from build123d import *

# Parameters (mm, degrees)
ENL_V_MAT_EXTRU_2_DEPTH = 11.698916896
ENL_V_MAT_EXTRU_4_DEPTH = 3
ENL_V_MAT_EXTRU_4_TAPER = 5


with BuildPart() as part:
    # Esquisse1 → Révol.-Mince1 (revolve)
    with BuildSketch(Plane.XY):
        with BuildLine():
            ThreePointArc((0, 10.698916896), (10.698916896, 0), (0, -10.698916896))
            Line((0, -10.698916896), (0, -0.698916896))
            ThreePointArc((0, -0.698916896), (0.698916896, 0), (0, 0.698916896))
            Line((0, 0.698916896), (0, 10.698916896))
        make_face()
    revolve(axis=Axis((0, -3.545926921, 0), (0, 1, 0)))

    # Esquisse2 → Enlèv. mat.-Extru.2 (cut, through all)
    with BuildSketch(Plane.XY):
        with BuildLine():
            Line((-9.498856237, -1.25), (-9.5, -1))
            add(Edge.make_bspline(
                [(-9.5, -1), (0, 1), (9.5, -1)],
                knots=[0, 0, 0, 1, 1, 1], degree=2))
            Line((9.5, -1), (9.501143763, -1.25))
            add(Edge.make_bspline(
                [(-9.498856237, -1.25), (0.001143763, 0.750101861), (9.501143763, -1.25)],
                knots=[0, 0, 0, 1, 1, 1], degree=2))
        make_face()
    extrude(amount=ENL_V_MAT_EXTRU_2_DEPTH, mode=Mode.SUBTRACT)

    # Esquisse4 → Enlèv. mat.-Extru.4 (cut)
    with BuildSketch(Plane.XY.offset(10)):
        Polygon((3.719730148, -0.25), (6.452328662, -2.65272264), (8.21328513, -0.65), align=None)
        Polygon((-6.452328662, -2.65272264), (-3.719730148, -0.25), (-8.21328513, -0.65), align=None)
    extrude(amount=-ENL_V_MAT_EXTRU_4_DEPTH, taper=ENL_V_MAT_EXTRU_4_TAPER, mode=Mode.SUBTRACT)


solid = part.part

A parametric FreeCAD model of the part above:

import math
import FreeCAD as App
import Part
import Sketcher

V = App.Vector
Q = App.Units.Quantity

doc = App.newDocument("Part")
body = doc.addObject("PartDesign::Body", "Body")

# Sketch on XY plane
sketch1 = doc.addObject("Sketcher::SketchObject", "Sketch")
body.addObject(sketch1)
sketch1.AttachmentSupport = (doc.XY_Plane, [""])
sketch1.MapMode = "FlatFace"
sketch1.addGeometry([
    Part.ArcOfCircle(Part.Circle(V(0, 0, 0), V(0, 0, 1), 10.7), math.radians(-90), math.radians(90)),
    Part.LineSegment(V(0, 10.7, 0), V(0, 0.7, 0)),
    Part.ArcOfCircle(Part.Circle(V(0, 0, 0), V(0, 0, 1), 0.7), math.radians(-90), math.radians(90)),
    Part.LineSegment(V(0, -0.7, 0), V(0, -10.7, 0)),
], False)
sketch1.addConstraint([
    Sketcher.Constraint("Coincident", 0, 2, 1, 1),
    Sketcher.Constraint("Coincident", 1, 2, 2, 2),
    Sketcher.Constraint("Coincident", 2, 1, 3, 1),
    Sketcher.Constraint("Coincident", 3, 2, 0, 1),
    Sketcher.Constraint("Vertical", 1),
    Sketcher.Constraint("Vertical", 3),
    Sketcher.Constraint("Coincident", 0, 3, -1, 1),
    Sketcher.Constraint("Coincident", 2, 3, -1, 1),
    Sketcher.Constraint("PointOnObject", 0, 2, -2),
    Sketcher.Constraint("PointOnObject", 2, 1, -2),
    Sketcher.Constraint("DistanceY", 1, 2, 1, 1, Q("10 mm")),
    Sketcher.Constraint("Radius", 0, Q("10.698917 mm")),
])
revolution = doc.addObject("PartDesign::Revolution", "Revolution")
body.addObject(revolution)
revolution.Profile = sketch1
revolution.ReferenceAxis = (sketch1, ["V_Axis"])
revolution.Angle = 360

# Sketch on XY plane
sketch2 = doc.addObject("Sketcher::SketchObject", "Sketch001")
body.addObject(sketch2)
sketch2.AttachmentSupport = (doc.XY_Plane, [""])
sketch2.MapMode = "FlatFace"
sketch2.addGeometry([
    Part.LineSegment(V(-9.5, -1, 0), V(-9.498856, -1.25, 0)),
    Part.BSplineCurve([V(-9.498856, -1.25, 0), V(0.001144, 0.750102, 0), V(9.501144, -1.25, 0)], [3, 3], [0, 1], False, 2, [1, 1, 1], False),
    Part.LineSegment(V(9.501144, -1.25, 0), V(9.5, -1, 0)),
    Part.BSplineCurve([V(-9.5, -1, 0), V(0, 1, 0), V(9.5, -1, 0)], [3, 3], [0, 1], False, 2, [1, 1, 1], False),
], False)
sketch2.addConstraint([
    Sketcher.Constraint("Block", 1),
    Sketcher.Constraint("Block", 3),
    Sketcher.Constraint("Coincident", 0, 2, 1, 1),
    Sketcher.Constraint("Coincident", 1, 2, 2, 1),
    Sketcher.Constraint("Coincident", 2, 2, 3, 2),
    Sketcher.Constraint("Coincident", 3, 1, 0, 1),
])
pocket1 = doc.addObject("PartDesign::Pocket", "Pocket")
body.addObject(pocket1)
pocket1.Profile = sketch2
pocket1.Type = "ThroughAll"
pocket1.Reversed = True

# Sketch on XY plane
sketch3 = doc.addObject("Sketcher::SketchObject", "Sketch002")
body.addObject(sketch3)
sketch3.AttachmentSupport = (doc.XY_Plane, [""])
sketch3.MapMode = "FlatFace"
sketch3.AttachmentOffset = App.Placement(V(0, 0, 10), App.Rotation())
sketch3.addGeometry([
    Part.LineSegment(V(3.7, -0.2, 0), V(6.5, -2.7, 0)),  # 0
    Part.LineSegment(V(6.5, -2.7, 0), V(8.2, -0.7, 0)),  # 1
    Part.LineSegment(V(8.2, -0.7, 0), V(3.7, -0.2, 0)),  # 2
    Part.LineSegment(V(-6.5, -2.7, 0), V(-3.7, -0.2, 0)),  # 3
    Part.LineSegment(V(-3.7, -0.2, 0), V(-8.2, -0.7, 0)),  # 4
    Part.LineSegment(V(-8.2, -0.7, 0), V(-6.5, -2.7, 0)),  # 5
], False)
sketch3.addConstraint([
    Sketcher.Constraint("Coincident", 0, 2, 1, 1),
    Sketcher.Constraint("Coincident", 1, 2, 2, 1),
    Sketcher.Constraint("Coincident", 2, 2, 0, 1),
    Sketcher.Constraint("Coincident", 3, 2, 4, 1),
    Sketcher.Constraint("Coincident", 4, 2, 5, 1),
    Sketcher.Constraint("Coincident", 5, 2, 3, 1),
    Sketcher.Constraint("Symmetric", 2, 2, 3, 2, -2),
    Sketcher.Constraint("Symmetric", 1, 2, 4, 2, -2),
    Sketcher.Constraint("Symmetric", 0, 2, 5, 2, -2),
    Sketcher.Constraint("Perpendicular", 0, 1),
    Sketcher.Constraint("DistanceY", 1, 2, 2, 2, Q("0.4 mm")),
    Sketcher.Constraint("DistanceY", 1, 2, -1, 1, Q("0.65 mm")),
    Sketcher.Constraint("DistanceX", 2, 2, 0, 2, Q("2.732599 mm")),
    Sketcher.Constraint("Distance", 1, Q("2.666808 mm")),
    Sketcher.Constraint("DistanceX", -1, 1, 0, 2, Q("6.452329 mm")),
])
pocket2 = doc.addObject("PartDesign::Pocket", "Pocket001")
body.addObject(pocket2)
pocket2.Profile = sketch3
pocket2.Length = 3
pocket2.TaperAngle = -5

doc.recompute()
